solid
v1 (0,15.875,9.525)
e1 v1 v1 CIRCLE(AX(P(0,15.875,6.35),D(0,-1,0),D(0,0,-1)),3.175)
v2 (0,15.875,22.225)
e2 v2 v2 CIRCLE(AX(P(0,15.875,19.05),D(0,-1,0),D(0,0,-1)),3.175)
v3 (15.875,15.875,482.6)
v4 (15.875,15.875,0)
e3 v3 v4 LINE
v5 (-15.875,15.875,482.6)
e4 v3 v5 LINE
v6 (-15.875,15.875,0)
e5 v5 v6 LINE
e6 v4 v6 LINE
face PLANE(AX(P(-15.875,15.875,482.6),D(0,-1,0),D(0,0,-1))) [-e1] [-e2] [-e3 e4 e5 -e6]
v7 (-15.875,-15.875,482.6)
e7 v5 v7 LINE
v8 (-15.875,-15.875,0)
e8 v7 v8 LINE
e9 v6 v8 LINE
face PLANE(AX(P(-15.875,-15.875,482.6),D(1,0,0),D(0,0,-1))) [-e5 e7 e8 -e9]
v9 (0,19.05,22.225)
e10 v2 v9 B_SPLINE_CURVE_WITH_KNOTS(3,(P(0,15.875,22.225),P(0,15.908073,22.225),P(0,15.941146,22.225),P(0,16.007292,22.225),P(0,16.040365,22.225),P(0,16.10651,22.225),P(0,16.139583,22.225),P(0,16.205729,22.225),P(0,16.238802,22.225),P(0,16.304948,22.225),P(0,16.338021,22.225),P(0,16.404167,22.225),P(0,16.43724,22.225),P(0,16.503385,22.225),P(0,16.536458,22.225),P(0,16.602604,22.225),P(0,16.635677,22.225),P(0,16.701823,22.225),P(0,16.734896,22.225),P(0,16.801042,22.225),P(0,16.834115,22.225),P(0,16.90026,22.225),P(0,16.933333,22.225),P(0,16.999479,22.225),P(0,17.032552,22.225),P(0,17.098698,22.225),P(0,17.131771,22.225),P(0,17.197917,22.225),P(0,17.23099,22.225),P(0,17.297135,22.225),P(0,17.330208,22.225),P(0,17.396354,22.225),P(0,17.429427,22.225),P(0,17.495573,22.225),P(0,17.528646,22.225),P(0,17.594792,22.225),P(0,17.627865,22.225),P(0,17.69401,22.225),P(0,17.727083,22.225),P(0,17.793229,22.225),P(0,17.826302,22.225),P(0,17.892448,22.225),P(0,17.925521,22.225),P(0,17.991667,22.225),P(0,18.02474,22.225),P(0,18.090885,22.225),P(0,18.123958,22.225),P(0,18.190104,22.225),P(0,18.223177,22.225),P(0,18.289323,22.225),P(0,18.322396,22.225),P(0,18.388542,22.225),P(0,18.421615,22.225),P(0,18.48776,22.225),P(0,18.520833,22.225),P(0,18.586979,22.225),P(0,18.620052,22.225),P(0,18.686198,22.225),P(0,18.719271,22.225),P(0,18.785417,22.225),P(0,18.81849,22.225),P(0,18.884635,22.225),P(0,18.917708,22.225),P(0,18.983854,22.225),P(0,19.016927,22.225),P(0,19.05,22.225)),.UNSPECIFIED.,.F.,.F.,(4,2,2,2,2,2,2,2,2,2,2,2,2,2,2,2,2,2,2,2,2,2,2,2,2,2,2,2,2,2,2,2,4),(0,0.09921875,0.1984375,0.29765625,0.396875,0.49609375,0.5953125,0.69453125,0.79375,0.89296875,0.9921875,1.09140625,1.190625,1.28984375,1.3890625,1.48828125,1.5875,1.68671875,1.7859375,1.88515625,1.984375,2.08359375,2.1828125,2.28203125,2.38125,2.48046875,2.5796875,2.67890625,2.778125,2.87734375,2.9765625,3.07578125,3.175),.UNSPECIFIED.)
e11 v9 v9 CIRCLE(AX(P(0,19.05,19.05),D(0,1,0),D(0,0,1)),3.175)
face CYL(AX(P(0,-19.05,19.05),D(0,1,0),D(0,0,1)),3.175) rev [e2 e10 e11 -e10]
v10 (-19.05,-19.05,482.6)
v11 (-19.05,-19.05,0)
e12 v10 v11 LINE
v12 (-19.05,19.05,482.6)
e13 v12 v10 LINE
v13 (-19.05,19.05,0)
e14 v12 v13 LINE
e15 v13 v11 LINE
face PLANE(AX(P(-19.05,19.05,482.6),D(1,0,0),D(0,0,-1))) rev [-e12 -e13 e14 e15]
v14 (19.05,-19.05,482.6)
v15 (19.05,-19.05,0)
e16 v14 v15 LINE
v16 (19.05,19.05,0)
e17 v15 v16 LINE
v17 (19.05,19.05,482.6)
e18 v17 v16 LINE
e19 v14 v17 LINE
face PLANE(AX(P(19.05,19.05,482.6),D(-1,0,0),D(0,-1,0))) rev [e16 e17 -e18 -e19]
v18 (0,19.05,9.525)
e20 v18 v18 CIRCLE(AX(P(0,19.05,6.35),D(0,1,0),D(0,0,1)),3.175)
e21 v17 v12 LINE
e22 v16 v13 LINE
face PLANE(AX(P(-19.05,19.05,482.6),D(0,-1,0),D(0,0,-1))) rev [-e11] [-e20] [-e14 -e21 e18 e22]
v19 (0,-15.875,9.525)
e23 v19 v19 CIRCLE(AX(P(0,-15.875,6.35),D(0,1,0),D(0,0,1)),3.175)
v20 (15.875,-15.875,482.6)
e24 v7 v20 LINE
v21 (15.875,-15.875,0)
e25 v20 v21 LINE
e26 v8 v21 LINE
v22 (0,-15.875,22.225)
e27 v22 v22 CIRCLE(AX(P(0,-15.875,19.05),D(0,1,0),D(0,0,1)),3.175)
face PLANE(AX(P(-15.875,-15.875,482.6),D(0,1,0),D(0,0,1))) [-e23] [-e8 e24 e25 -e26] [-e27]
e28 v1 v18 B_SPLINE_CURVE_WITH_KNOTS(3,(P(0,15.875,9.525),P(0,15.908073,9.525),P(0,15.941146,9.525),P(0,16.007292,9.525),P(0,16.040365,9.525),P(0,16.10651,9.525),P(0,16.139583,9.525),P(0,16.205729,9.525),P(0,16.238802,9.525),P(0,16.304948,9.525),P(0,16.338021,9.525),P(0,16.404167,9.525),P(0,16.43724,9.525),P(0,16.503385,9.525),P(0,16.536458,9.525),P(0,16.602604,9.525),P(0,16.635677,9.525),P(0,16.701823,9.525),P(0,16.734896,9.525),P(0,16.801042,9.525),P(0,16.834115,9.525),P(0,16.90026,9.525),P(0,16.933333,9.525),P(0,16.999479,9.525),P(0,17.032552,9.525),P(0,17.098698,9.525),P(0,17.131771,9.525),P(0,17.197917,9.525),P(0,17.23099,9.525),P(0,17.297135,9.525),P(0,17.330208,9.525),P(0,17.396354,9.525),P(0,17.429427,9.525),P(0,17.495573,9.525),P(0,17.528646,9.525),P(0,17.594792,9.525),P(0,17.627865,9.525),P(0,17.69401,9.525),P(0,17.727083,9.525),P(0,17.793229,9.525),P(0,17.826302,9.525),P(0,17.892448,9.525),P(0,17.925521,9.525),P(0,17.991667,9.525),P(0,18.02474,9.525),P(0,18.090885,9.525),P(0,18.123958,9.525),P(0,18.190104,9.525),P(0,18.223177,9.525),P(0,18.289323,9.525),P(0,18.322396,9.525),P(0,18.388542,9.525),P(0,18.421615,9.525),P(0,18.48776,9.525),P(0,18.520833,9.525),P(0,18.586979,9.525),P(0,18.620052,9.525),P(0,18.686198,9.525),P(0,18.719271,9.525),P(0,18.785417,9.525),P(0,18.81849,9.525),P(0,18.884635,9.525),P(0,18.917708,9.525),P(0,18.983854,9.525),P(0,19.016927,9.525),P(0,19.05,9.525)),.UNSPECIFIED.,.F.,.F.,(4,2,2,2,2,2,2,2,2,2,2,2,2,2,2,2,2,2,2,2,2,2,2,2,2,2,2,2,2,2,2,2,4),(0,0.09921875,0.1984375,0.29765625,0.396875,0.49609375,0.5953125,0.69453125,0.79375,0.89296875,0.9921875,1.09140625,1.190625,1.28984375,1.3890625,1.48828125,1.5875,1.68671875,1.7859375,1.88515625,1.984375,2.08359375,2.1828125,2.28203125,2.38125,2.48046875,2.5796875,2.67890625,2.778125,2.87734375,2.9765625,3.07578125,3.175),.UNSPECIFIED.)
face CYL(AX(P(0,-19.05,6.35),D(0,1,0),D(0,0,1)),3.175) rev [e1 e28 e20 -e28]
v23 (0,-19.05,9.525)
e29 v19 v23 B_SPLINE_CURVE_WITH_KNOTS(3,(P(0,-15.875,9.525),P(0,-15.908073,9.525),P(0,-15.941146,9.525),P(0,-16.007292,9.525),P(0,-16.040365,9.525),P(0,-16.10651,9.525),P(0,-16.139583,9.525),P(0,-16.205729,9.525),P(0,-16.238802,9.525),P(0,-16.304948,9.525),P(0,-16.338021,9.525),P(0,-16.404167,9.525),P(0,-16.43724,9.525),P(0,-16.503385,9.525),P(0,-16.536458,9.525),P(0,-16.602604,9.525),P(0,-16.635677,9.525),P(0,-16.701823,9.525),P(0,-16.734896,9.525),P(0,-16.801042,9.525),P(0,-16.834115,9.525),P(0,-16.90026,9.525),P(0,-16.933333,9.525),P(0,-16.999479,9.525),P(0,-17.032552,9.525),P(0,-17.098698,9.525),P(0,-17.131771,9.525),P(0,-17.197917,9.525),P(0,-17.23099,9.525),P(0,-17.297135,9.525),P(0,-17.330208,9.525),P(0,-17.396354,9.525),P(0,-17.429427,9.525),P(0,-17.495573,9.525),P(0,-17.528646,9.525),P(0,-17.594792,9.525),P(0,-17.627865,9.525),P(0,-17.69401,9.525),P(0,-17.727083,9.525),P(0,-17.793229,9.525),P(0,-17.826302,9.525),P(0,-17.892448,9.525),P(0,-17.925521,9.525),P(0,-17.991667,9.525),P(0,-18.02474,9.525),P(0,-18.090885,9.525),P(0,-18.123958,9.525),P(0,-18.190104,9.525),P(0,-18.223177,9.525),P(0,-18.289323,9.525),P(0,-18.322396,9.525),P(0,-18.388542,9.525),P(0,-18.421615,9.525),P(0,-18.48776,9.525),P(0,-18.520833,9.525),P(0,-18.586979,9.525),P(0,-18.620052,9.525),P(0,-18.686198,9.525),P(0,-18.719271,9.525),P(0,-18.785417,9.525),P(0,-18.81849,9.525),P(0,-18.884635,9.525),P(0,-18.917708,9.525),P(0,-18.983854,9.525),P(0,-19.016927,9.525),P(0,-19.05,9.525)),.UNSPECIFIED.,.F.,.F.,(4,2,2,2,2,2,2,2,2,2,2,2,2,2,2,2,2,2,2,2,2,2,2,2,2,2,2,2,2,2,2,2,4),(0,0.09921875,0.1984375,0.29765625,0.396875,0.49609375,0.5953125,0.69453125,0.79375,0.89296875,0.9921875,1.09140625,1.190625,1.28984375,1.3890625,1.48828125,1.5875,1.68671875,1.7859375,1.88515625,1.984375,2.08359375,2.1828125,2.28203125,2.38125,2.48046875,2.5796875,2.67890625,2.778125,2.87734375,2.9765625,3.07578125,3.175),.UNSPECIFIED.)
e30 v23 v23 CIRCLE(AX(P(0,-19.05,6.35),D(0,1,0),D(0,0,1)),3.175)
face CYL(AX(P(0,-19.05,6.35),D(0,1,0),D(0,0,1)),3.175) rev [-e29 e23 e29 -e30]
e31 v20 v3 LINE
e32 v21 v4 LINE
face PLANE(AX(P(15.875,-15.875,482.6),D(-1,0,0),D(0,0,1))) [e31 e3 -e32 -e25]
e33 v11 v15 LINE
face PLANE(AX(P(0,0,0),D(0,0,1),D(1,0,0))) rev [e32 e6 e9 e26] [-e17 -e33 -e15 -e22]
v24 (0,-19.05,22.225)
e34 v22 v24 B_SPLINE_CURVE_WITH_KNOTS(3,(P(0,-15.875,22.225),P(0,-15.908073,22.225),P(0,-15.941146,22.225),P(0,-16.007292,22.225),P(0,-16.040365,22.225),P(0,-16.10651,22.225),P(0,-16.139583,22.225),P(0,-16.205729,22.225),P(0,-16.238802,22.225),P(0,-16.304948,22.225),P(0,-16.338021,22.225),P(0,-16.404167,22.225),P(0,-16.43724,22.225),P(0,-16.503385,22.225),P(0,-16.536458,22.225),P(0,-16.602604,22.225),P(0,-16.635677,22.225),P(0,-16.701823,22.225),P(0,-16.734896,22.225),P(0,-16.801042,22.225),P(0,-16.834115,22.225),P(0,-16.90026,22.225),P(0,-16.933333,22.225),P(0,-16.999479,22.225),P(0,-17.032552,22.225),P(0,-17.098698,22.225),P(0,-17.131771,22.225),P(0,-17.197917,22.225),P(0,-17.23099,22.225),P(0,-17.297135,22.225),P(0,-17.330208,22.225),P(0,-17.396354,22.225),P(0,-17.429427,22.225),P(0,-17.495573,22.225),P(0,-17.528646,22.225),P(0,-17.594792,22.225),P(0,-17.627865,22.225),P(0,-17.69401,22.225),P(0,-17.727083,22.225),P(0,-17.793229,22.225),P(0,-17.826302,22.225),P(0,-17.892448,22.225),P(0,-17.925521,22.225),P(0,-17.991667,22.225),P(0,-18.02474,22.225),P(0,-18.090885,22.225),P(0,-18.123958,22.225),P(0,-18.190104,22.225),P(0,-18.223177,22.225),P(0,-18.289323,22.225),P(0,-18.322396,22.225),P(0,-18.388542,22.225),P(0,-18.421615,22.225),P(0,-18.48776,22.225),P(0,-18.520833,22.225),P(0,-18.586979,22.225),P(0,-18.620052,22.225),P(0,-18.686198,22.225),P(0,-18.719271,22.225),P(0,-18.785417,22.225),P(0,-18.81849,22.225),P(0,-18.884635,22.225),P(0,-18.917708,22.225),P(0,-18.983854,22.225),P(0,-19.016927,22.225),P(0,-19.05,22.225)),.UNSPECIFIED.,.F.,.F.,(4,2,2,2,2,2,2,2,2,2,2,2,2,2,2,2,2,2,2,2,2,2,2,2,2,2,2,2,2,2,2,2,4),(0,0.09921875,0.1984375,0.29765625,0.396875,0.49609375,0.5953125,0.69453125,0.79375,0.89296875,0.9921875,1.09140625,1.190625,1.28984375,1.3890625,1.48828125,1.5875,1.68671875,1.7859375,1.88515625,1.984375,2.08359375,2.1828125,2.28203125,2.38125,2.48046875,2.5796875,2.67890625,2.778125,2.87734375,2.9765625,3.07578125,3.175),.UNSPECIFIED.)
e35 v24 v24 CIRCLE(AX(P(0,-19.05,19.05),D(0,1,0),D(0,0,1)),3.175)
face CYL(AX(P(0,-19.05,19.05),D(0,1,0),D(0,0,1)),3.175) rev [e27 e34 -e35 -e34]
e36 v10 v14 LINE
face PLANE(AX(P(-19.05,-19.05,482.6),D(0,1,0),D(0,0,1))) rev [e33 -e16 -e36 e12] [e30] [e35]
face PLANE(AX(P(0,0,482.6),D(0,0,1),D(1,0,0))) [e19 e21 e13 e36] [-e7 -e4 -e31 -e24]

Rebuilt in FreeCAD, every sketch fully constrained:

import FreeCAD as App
import Part
import Sketcher
from FreeCAD import Vector
Q = App.Units.Quantity


def add_polygon(sketch, points):
    """Adds a closed chain of lines whose ends are joined by coincident constraints."""
    first, n = sketch.GeometryCount, len(points)
    for a, b in zip(points, points[1:] + points[:1]):
        sketch.addGeometry(Part.LineSegment(App.Vector(*a, 0), App.Vector(*b, 0)), False)
    for i in range(n):
        sketch.addConstraint(Sketcher.Constraint("Coincident", first + i, 2, first + (i + 1) % n, 1))

doc = App.newDocument("Part")
params = doc.addObject("Spreadsheet::Sheet", "Params")
for row, (alias, value) in enumerate([
    ("sketch1_width", "1.5 in"),
    ("sketch1_width2", "1.25 in"),
    ("pad1_length", "19 in"),
    ("sketch2_diameter", "0.25 in"),
], start=1):
    params.set(f"A{row}", alias)
    params.set(f"B{row}", "=" + value)
    params.setAlias(f"B{row}", alias)

body = doc.addObject("PartDesign::Body", "Body")

# Sketch on XY plane
sketch1 = doc.addObject("Sketcher::SketchObject", "Sketch")
body.addObject(sketch1)
sketch1.AttachmentSupport = (doc.XY_Plane, [""])
sketch1.MapMode = "FlatFace"
add_polygon(sketch1, [(-19, 19), (-19, -19), (19, -19), (19, 19)])  # lines 0-3
add_polygon(sketch1, [(16, -16), (-16, -16), (-16, 16), (16, 16)])  # lines 4-7
sketch1.addConstraint(Sketcher.Constraint("Vertical", 0))
sketch1.addConstraint(Sketcher.Constraint("Horizontal", 1))
sketch1.addConstraint(Sketcher.Constraint("Vertical", 2))
sketch1.addConstraint(Sketcher.Constraint("Horizontal", 3))
sketch1.addConstraint(Sketcher.Constraint("Horizontal", 4))
sketch1.addConstraint(Sketcher.Constraint("Vertical", 5))
sketch1.addConstraint(Sketcher.Constraint("Horizontal", 6))
sketch1.addConstraint(Sketcher.Constraint("Vertical", 7))
sketch1.addConstraint(Sketcher.Constraint("Symmetric", 0, 2, 2, 2, -1, 1))
sketch1.addConstraint(Sketcher.Constraint("Symmetric", 4, 2, 6, 2, -1, 1))
sketch1.addConstraint(Sketcher.Constraint("Equal", 3, 0))
sketch1.addConstraint(Sketcher.Constraint("Equal", 6, 5))
sketch1.addConstraint(Sketcher.Constraint("DistanceX", 1, 1, 1, 2, Q("1.5 in")))
sketch1.addConstraint(Sketcher.Constraint("DistanceX", 4, 2, 4, 1, Q("1.25 in")))
sketch1.setExpression("Constraints[20]", "Params.sketch1_width")
sketch1.setExpression("Constraints[21]", "Params.sketch1_width2")
pad1 = doc.addObject("PartDesign::Pad", "Pad")
body.addObject(pad1)
pad1.Profile = sketch1
pad1.setExpression("Length", "Params.pad1_length")

# Sketch on XZ plane
sketch2 = doc.addObject("Sketcher::SketchObject", "Sketch001")
body.addObject(sketch2)
sketch2.AttachmentSupport = (doc.XZ_Plane, [""])
sketch2.MapMode = "FlatFace"
sketch2.AttachmentOffset = App.Placement(Vector(0, 0, -0.75 * 25.4), App.Rotation())
sketch2.addGeometry(Part.Circle(Vector(0, 19.1, 0), Vector(0, 0, 1), 3.2), False)
sketch2.addGeometry(Part.Circle(Vector(0, 6.3, 0), Vector(0, 0, 1), 3.2), False)
sketch2.addConstraint(Sketcher.Constraint("Equal", 0, 1))
sketch2.addConstraint(Sketcher.Constraint("PointOnObject", 0, 3, -2))
sketch2.addConstraint(Sketcher.Constraint("PointOnObject", 1, 3, -2))
sketch2.addConstraint(Sketcher.Constraint("Diameter", 0, Q("0.25 in")))
sketch2.addConstraint(Sketcher.Constraint("DistanceY", 1, 3, 0, 3, Q("0.5 in")))
sketch2.addConstraint(Sketcher.Constraint("DistanceY", -1, 1, 0, 3, Q("0.75 in")))
sketch2.setExpression("Constraints[3]", "Params.sketch2_diameter")
pocket1 = doc.addObject("PartDesign::Pocket", "Pocket")
body.addObject(pocket1)
pocket1.Profile = sketch2
pocket1.Type = "ThroughAll"
pocket1.Reversed = True

doc.recompute()
